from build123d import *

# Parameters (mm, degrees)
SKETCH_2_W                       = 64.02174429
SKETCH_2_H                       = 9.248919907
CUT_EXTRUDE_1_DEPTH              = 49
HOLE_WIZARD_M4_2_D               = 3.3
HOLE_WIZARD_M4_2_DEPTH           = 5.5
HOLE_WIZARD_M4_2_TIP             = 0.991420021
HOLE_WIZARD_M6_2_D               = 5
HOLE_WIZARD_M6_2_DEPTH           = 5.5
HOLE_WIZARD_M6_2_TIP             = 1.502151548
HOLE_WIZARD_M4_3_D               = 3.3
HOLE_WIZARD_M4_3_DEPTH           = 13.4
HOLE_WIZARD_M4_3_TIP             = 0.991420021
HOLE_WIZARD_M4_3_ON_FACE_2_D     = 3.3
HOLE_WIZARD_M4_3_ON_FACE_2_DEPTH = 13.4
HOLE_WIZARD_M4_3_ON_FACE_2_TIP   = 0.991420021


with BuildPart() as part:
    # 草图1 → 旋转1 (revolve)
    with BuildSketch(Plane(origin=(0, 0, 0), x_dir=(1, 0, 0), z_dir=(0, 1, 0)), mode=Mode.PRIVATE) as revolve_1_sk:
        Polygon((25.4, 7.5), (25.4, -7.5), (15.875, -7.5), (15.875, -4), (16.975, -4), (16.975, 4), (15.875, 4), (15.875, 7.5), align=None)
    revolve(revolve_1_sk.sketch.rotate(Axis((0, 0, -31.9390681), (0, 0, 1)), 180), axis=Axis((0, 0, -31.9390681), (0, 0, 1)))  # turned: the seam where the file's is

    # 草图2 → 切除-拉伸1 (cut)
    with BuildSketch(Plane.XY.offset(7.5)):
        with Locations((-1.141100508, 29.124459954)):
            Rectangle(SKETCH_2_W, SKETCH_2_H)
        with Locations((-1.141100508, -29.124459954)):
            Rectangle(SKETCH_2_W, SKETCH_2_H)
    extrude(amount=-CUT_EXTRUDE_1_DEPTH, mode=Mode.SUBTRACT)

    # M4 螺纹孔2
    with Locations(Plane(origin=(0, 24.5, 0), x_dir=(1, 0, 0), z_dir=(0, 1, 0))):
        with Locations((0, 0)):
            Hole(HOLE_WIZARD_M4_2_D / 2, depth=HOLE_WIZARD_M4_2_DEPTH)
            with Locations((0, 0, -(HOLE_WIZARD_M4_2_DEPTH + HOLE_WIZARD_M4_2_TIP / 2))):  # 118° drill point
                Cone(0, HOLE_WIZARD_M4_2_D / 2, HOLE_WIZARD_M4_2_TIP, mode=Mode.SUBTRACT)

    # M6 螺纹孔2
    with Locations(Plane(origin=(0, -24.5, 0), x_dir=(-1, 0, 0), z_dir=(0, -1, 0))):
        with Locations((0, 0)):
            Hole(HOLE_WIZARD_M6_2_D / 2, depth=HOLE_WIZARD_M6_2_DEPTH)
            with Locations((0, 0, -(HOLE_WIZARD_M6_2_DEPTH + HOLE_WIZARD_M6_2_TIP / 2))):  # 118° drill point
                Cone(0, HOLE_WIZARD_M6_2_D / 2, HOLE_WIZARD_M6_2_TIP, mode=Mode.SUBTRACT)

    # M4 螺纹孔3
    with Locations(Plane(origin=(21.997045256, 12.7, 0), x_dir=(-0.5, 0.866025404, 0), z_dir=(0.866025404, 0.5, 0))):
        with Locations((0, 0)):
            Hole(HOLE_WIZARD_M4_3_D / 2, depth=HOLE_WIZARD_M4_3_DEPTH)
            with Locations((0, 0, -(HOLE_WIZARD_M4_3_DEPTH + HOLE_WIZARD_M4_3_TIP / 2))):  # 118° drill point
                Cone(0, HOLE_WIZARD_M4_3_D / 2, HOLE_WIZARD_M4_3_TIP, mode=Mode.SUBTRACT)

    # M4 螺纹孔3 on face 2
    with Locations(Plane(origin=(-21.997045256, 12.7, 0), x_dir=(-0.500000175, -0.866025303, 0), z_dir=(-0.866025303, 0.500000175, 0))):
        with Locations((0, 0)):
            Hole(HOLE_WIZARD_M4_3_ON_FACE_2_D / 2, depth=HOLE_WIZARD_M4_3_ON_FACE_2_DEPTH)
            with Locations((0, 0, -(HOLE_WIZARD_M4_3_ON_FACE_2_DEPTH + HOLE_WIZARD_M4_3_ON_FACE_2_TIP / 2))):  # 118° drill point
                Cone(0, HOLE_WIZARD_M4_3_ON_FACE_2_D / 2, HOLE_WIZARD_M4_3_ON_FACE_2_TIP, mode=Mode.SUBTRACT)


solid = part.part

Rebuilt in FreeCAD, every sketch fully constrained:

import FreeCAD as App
import Part
import Sketcher

V = App.Vector


def add_polygon(sketch, points):
    """Adds a closed chain of lines whose ends are joined by coincident constraints."""
    first, n = sketch.GeometryCount, len(points)
    for a, b in zip(points, points[1:] + points[:1]):
        sketch.addGeometry(Part.LineSegment(App.Vector(*a, 0), App.Vector(*b, 0)), False)
    for i in range(n):
        sketch.addConstraint(Sketcher.Constraint("Coincident", first + i, 2, first + (i + 1) % n, 1))

doc = App.newDocument("Part")
body = doc.addObject("PartDesign::Body", "Body")

# Sketch on XZ plane
sketch1 = doc.addObject("Sketcher::SketchObject", "Sketch")
body.addObject(sketch1)
sketch1.AttachmentSupport = (doc.XZ_Plane, [""])
sketch1.MapMode = "FlatFace"
add_polygon(sketch1, [(25.4, 7.5), (25.4, -7.5), (15.875, -7.5), (15.875, -4), (16.975, -4), (16.975, 4), (15.875, 4), (15.875, 7.5)])  # lines 0-7
sketch1.addConstraint([
    Sketcher.Constraint("Vertical", 0),
    Sketcher.Constraint("Horizontal", 1),
    Sketcher.Constraint("Vertical", 2),
    Sketcher.Constraint("Horizontal", 3),
    Sketcher.Constraint("Vertical", 4),
    Sketcher.Constraint("Horizontal", 5),
    Sketcher.Constraint("Vertical", 6),
    Sketcher.Constraint("Horizontal", 7),
    Sketcher.Constraint("Symmetric", 2, 2, 5, 2, -1),
    Sketcher.Constraint("Equal", 2, 6),
    Sketcher.Constraint("DistanceY", 0, 2, 0, 1, 15.0),
    Sketcher.Constraint("DistanceY", 4, 1, 4, 2, 8.0),
    Sketcher.Constraint("DistanceX", 3, 1, 3, 2, 1.1),
    Sketcher.Constraint("DistanceX", -1, 1, 0, 2, 25.4),
    Sketcher.Constraint("DistanceX", 1, 2, 1, 1, 9.525),
])
revolution = doc.addObject("PartDesign::Revolution", "Revolution")
body.addObject(revolution)
revolution.Profile = sketch1
revolution.ReferenceAxis = (sketch1, ["V_Axis"])
revolution.Angle = 360

# Sketch on XY plane
sketch2 = doc.addObject("Sketcher::SketchObject", "Sketch001")
body.addObject(sketch2)
sketch2.AttachmentSupport = (doc.XY_Plane, [""])
sketch2.MapMode = "FlatFace"
sketch2.AttachmentOffset = App.Placement(V(0, 0, 7.5), App.Rotation())
add_polygon(sketch2, [(-33.151973, 33.74892), (-33.151973, 24.5), (30.869772, 24.5), (30.869772, 33.74892)])  # lines 0-3
add_polygon(sketch2, [(-33.151973, -24.5), (-33.151973, -33.74892), (30.869772, -33.74892), (30.869772, -24.5)])  # lines 4-7
sketch2.addConstraint([
    Sketcher.Constraint("Vertical", 0),
    Sketcher.Constraint("Horizontal", 1),
    Sketcher.Constraint("Vertical", 2),
    Sketcher.Constraint("Horizontal", 3),
    Sketcher.Constraint("Vertical", 4),
    Sketcher.Constraint("Horizontal", 5),
    Sketcher.Constraint("Vertical", 6),
    Sketcher.Constraint("Horizontal", 7),
    Sketcher.Constraint("Symmetric", 3, 2, 4, 2, -1),
    Sketcher.Constraint("Symmetric", 1, 2, 6, 2, -1),
    Sketcher.Constraint("DistanceY", 6, 2, 1, 2, 49.0),
    Sketcher.Constraint("DistanceY", 0, 2, 0, 1, 9.24892),
    Sketcher.Constraint("DistanceX", 1, 1, 1, 2, 64.021744),
    Sketcher.Constraint("DistanceX", -1, 1, 1, 2, 30.869772),
])
pocket1 = doc.addObject("PartDesign::Pocket", "Pocket")
body.addObject(pocket1)
pocket1.Profile = sketch2
pocket1.Length = 49

# Sketch on XZ plane
sketch3 = doc.addObject("Sketcher::SketchObject", "Sketch002")
body.addObject(sketch3)
sketch3.AttachmentSupport = (doc.XZ_Plane, [""])
sketch3.MapMode = "FlatFace"
sketch3.AttachmentOffset = App.Placement(V(0, 0, -24.5), App.Rotation())
sketch3.addGeometry(Part.Circle(V(0, 0, 0), V(0, 0, 1), 1.65), False)
sketch3.addConstraint([
    Sketcher.Constraint("Coincident", 0, 3, -1, 1),
    Sketcher.Constraint("Diameter", 0, 3.3),
])
doc.recompute()
hole = doc.addObject("PartDesign::Hole", "Hole")
body.addObject(hole)
hole.Profile = sketch3
hole.ThreadType = "None"
hole.Diameter = 3.3
hole.DepthType = "Dimension"
hole.Depth = 5.5
hole.DrillPoint = "Angled"
hole.DrillPointAngle = 118
hole.Reversed = True

# Sketch on XZ plane
sketch4 = doc.addObject("Sketcher::SketchObject", "Sketch003")
body.addObject(sketch4)
sketch4.AttachmentSupport = (doc.XZ_Plane, [""])
sketch4.MapMode = "FlatFace"
sketch4.AttachmentOffset = App.Placement(V(0, 0, 24.5), App.Rotation())
sketch4.addGeometry(Part.Circle(V(0, 0, 0), V(0, 0, 1), 2.5), False)
sketch4.addConstraint([
    Sketcher.Constraint("Coincident", 0, 3, -1, 1),
    Sketcher.Constraint("Diameter", 0, 5.0),
])
doc.recompute()
hole2 = doc.addObject("PartDesign::Hole", "Hole001")
body.addObject(hole2)
hole2.Profile = sketch4
hole2.ThreadType = "None"
hole2.Diameter = 5
hole2.DepthType = "Dimension"
hole2.Depth = 5.5
hole2.DrillPoint = "Angled"
hole2.DrillPointAngle = 118

# Sketch on an angled plane
sketch5 = doc.addObject("Sketcher::SketchObject", "Sketch004")
body.addObject(sketch5)
sketch5.Placement = App.Placement(V(21.997045, 12.7, 0), App.Rotation(V(-0.5, 0.866025404, 0), V(0, 0, 1), V(0.866025404, 0.5, 0), "ZXY"))
sketch5.addGeometry(Part.Circle(V(0, 0, 0), V(0, 0, 1), 1.65), False)
sketch5.addConstraint([
    Sketcher.Constraint("Coincident", 0, 3, -1, 1),
    Sketcher.Constraint("Diameter", 0, 3.3),
])
doc.recompute()
hole3 = doc.addObject("PartDesign::Hole", "Hole002")
body.addObject(hole3)
hole3.Profile = sketch5
hole3.ThreadType = "None"
hole3.Diameter = 3.3
hole3.DepthType = "Dimension"
hole3.Depth = 13.4
hole3.DrillPoint = "Angled"
hole3.DrillPointAngle = 118

# Sketch on an angled plane
sketch6 = doc.addObject("Sketcher::SketchObject", "Sketch005")
body.addObject(sketch6)
sketch6.Placement = App.Placement(V(-21.997043, 12.700004, 0), App.Rotation(V(-0.500000175, -0.866025303, 0), V(0, 0, 1), V(-0.866025303, 0.500000175, 0), "ZXY"))
sketch6.addGeometry(Part.Circle(V(0.000005, 0, 0), V(0, 0, 1), 1.65), False)
sketch6.addConstraint([
    Sketcher.Constraint("Coincident", 0, 3, -1, 1),
    Sketcher.Constraint("Diameter", 0, 3.3),
])
doc.recompute()
hole4 = doc.addObject("PartDesign::Hole", "Hole003")
body.addObject(hole4)
hole4.Profile = sketch6
hole4.ThreadType = "None"
hole4.Diameter = 3.3
hole4.DepthType = "Dimension"
hole4.Depth = 13.4
hole4.DrillPoint = "Angled"
hole4.DrillPointAngle = 118

doc.recompute()
